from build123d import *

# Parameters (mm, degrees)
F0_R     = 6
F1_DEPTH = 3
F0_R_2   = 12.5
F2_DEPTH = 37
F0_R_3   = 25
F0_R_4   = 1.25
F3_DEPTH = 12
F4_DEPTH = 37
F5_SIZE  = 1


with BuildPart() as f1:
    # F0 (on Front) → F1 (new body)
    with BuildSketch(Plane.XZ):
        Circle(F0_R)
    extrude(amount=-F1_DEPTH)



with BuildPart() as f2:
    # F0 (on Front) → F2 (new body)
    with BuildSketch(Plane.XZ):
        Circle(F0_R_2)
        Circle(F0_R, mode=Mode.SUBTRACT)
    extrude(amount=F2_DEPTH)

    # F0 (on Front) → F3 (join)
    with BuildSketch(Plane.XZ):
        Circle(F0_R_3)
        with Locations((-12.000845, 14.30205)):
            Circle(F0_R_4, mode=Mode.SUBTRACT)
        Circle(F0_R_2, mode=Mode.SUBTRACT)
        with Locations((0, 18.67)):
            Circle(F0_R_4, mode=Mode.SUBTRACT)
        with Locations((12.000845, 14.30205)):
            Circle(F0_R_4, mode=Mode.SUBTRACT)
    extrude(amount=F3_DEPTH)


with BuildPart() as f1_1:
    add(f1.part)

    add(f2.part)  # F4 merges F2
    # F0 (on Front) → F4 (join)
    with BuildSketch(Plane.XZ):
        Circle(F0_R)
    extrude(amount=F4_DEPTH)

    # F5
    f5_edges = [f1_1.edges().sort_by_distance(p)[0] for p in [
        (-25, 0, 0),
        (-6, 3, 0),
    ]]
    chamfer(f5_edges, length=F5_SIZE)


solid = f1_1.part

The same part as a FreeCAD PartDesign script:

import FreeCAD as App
import Part
import Sketcher
Q = App.Units.Quantity


def edges_at(feature, points):
    """Names of the edges that pass closest to the given points."""
    edges = feature.Shape.Edges
    near = lambda p: min(range(len(edges)), key=lambda i: edges[i].distToShape(Part.Vertex(*p))[0])
    return sorted({f"Edge{near(p) + 1}" for p in points})

doc = App.newDocument("Part")
body = doc.addObject("PartDesign::Body", "Body")

sketch1 = doc.addObject("Sketcher::SketchObject", "Sketch")
body.addObject(sketch1)
sketch1.AttachmentSupport = (doc.XZ_Plane, [""])
sketch1.MapMode = "FlatFace"
sketch1.addGeometry(Part.Circle(App.Vector(0, 0, 0), App.Vector(0, 0, 1), 6), False)
sketch1.addConstraint([
    Sketcher.Constraint("Coincident", 0, 3, -1, 1),
    Sketcher.Constraint("Diameter", 0, Q("12 mm")),
])
pad1 = doc.addObject("PartDesign::Pad", "Pad")
body.addObject(pad1)
pad1.Profile = sketch1
pad1.Length = 3
pad1.Reversed = True
body2 = doc.addObject("PartDesign::Body", "Body001")

sketch2 = doc.addObject("Sketcher::SketchObject", "Sketch001")
body2.addObject(sketch2)
sketch2.AttachmentSupport = (doc.getObject("XZ_Plane001"), [""])
sketch2.MapMode = "FlatFace"
sketch2.addGeometry([
    Part.Circle(App.Vector(0, 0, 0), App.Vector(0, 0, 1), 12.5),
    Part.Circle(App.Vector(0, 0, 0), App.Vector(0, 0, 1), 6),
], False)
sketch2.addConstraint([
    Sketcher.Constraint("Coincident", 0, 3, -1, 1),
    Sketcher.Constraint("Coincident", 1, 3, -1, 1),
    Sketcher.Constraint("Diameter", 0, Q("25 mm")),
    Sketcher.Constraint("Diameter", 1, Q("12 mm")),
])
pad2 = doc.addObject("PartDesign::Pad", "Pad001")
body2.addObject(pad2)
pad2.Profile = sketch2
pad2.Length = 37

sketch3 = doc.addObject("Sketcher::SketchObject", "Sketch002")
body2.addObject(sketch3)
sketch3.AttachmentSupport = (doc.getObject("XZ_Plane001"), [""])
sketch3.MapMode = "FlatFace"
sketch3.addGeometry([
    Part.Circle(App.Vector(0, 0, 0), App.Vector(0, 0, 1), 25),
    Part.Circle(App.Vector(0, 0, 0), App.Vector(0, 0, 1), 12.5),
    Part.Circle(App.Vector(-12.000845, 14.30205, 0), App.Vector(0, 0, 1), 1.25),
    Part.Circle(App.Vector(0, 18.67, 0), App.Vector(0, 0, 1), 1.25),
    Part.Circle(App.Vector(12.000845, 14.30205, 0), App.Vector(0, 0, 1), 1.25),
], False)
sketch3.addConstraint([
    Sketcher.Constraint("Coincident", 0, 3, -1, 1),
    Sketcher.Constraint("Coincident", 1, 3, -1, 1),
    Sketcher.Constraint("Equal", 2, 3),
    Sketcher.Constraint("Equal", 3, 4),
    Sketcher.Constraint("Symmetric", 2, 3, 4, 3, -2),
    Sketcher.Constraint("PointOnObject", 3, 3, -2),
    Sketcher.Constraint("Diameter", 0, Q("50 mm")),
    Sketcher.Constraint("Diameter", 1, Q("25 mm")),
    Sketcher.Constraint("Diameter", 2, Q("2.5 mm")),
    Sketcher.Constraint("DistanceY", -1, 1, 3, 3, Q("18.67 mm")),
    Sketcher.Constraint("DistanceY", -1, 1, 2, 3, Q("14.30205 mm")),
    Sketcher.Constraint("DistanceX", 2, 3, 4, 3, Q("24.00169 mm")),
])
pad3 = doc.addObject("PartDesign::Pad", "Pad002")
body2.addObject(pad3)
pad3.Profile = sketch3
pad3.Length = 12
body.AllowCompound = True
doc.recompute()

boolean = doc.addObject("PartDesign::Boolean", "Boolean")
body.addObject(boolean)
boolean.Type = "Fuse"
boolean.addObjects([body2])

sketch4 = doc.addObject("Sketcher::SketchObject", "Sketch003")
body.addObject(sketch4)
sketch4.AttachmentSupport = (doc.XZ_Plane, [""])
sketch4.MapMode = "FlatFace"
sketch4.addGeometry(Part.Circle(App.Vector(0, 0, 0), App.Vector(0, 0, 1), 6), False)
sketch4.addConstraint([
    Sketcher.Constraint("Coincident", 0, 3, -1, 1),
    Sketcher.Constraint("Diameter", 0, Q("12 mm")),
])
pad4 = doc.addObject("PartDesign::Pad", "Pad003")
body.addObject(pad4)
pad4.Profile = sketch4
pad4.Length = 37
doc.recompute()

chamfer = doc.addObject("PartDesign::Chamfer", "Chamfer")
body.addObject(chamfer)
chamfer.Base = (pad4, edges_at(pad4, [(-25, 0, 0), (-6, 3, 0)]))
chamfer.Size = 1

doc.recompute()
